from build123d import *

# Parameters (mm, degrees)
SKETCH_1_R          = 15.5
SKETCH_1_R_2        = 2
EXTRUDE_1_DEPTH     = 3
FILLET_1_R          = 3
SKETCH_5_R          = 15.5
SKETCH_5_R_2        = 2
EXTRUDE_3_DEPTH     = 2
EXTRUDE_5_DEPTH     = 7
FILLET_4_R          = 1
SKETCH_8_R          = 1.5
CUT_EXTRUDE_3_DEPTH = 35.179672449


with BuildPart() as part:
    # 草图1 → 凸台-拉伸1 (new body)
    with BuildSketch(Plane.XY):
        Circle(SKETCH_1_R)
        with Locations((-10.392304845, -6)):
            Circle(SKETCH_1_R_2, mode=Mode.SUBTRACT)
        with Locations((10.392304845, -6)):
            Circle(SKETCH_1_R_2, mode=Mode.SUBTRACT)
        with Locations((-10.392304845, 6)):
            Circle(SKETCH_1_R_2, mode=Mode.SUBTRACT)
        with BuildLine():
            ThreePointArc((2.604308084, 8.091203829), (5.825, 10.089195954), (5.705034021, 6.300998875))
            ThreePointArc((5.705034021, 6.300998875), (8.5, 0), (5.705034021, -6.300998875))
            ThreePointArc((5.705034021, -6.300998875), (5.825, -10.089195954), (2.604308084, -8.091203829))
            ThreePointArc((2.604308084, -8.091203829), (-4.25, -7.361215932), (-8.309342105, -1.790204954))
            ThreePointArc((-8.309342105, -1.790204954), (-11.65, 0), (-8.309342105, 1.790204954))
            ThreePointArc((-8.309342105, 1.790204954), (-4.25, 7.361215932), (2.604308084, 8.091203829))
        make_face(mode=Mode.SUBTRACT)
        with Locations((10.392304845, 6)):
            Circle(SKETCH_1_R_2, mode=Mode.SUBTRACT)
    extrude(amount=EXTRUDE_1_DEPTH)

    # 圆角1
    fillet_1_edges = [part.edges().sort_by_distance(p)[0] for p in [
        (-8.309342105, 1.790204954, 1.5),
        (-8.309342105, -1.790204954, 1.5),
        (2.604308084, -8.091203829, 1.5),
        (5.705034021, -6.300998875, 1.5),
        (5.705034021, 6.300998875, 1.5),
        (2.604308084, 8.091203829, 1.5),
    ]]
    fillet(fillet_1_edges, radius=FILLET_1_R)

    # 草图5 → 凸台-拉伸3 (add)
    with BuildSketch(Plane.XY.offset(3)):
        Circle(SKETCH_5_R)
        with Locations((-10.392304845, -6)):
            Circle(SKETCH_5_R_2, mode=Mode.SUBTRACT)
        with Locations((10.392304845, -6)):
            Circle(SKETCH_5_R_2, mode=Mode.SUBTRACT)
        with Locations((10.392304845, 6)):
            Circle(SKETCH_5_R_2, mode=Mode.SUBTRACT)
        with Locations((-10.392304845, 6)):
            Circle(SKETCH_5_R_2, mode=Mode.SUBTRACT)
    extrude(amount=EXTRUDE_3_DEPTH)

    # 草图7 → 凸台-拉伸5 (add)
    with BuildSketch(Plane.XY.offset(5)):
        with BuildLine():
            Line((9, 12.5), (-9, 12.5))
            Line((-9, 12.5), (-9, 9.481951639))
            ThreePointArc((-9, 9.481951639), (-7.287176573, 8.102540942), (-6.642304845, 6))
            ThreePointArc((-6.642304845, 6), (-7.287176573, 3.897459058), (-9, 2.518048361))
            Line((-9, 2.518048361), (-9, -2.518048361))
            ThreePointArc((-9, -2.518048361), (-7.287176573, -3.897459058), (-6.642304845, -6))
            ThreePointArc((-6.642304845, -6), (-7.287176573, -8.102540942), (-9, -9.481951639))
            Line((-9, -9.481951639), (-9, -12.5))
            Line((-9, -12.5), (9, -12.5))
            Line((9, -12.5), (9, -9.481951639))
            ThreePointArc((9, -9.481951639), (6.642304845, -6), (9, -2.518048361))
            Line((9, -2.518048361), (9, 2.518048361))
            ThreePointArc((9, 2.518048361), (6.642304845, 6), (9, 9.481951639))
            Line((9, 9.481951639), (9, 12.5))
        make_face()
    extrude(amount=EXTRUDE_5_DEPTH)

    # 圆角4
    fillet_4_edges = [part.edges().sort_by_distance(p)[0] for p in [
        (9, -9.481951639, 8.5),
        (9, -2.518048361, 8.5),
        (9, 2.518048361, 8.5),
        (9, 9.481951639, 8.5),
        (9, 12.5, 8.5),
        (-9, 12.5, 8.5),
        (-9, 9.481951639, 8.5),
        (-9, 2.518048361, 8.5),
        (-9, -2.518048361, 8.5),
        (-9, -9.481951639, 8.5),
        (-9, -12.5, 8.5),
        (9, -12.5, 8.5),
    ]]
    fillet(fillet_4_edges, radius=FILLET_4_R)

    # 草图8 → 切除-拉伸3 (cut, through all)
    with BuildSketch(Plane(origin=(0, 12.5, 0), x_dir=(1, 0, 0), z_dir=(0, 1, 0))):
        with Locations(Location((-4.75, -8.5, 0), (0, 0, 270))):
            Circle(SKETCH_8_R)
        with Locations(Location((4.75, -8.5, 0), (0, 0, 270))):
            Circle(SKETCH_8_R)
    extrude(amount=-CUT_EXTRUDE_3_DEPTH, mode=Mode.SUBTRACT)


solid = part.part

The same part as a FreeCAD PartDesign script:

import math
import FreeCAD as App
import Part
import Sketcher
from FreeCAD import Vector
Q = App.Units.Quantity


def edges_at(feature, points):
    """Names of the edges that pass closest to the given points."""
    edges = feature.Shape.Edges
    near = lambda p: min(range(len(edges)), key=lambda i: edges[i].distToShape(Part.Vertex(*p))[0])
    return sorted({f"Edge{near(p) + 1}" for p in points})

doc = App.newDocument("Part")
body = doc.addObject("PartDesign::Body", "Body")

# Sketch on XY plane
sketch1 = doc.addObject("Sketcher::SketchObject", "Sketch")
body.addObject(sketch1)
sketch1.AttachmentSupport = (doc.XY_Plane, [""])
sketch1.MapMode = "FlatFace"
sketch1.addGeometry([
    Part.Circle(Vector(0, 0, 0), Vector(0, 0, 1), 15.5),  # 0
    Part.Circle(Vector(-10.4, -6, 0), Vector(0, 0, 1), 2),  # 1
    Part.Circle(Vector(10.4, -6, 0), Vector(0, 0, 1), 2),  # 2
    Part.ArcOfCircle(Part.Circle(Vector(0, 0, 0), Vector(0, 0, 1), 8.5), math.radians(72), math.radians(168)),  # 3
    Part.ArcOfCircle(Part.Circle(Vector(4.8, 8.2, 0), Vector(0, 0, 1), 2.1), math.radians(-64), math.radians(184)),  # 4
    Part.ArcOfCircle(Part.Circle(Vector(0, 0, 0), Vector(0, 0, 1), 8.5), math.radians(-48), math.radians(48)),  # 5
    Part.ArcOfCircle(Part.Circle(Vector(4.8, -8.2, 0), Vector(0, 0, 1), 2.1), math.radians(176), math.radians(424)),  # 6
    Part.ArcOfCircle(Part.Circle(Vector(0, 0, 0), Vector(0, 0, 1), 8.5), math.radians(-168), math.radians(-72)),  # 7
    Part.ArcOfCircle(Part.Circle(Vector(-9.5, 0, 0), Vector(0, 0, 1), 2.1), math.radians(56), math.radians(304)),  # 8
    Part.Circle(Vector(-10.4, 6, 0), Vector(0, 0, 1), 2),  # 9
    Part.Circle(Vector(10.4, 6, 0), Vector(0, 0, 1), 2),  # 10
], False)
sketch1.addConstraint([
    Sketcher.Constraint("Coincident", 3, 1, 4, 2),
    Sketcher.Constraint("Coincident", 4, 1, 5, 2),
    Sketcher.Constraint("Coincident", 5, 1, 6, 2),
    Sketcher.Constraint("Coincident", 6, 1, 7, 2),
    Sketcher.Constraint("Coincident", 7, 1, 8, 2),
    Sketcher.Constraint("Coincident", 8, 1, 3, 2),
    Sketcher.Constraint("Coincident", 0, 3, -1, 1),
    Sketcher.Constraint("Coincident", 3, 3, -1, 1),
    Sketcher.Constraint("Coincident", 5, 3, -1, 1),
    Sketcher.Constraint("Coincident", 7, 3, -1, 1),
    Sketcher.Constraint("Equal", 1, 2),
    Sketcher.Constraint("Equal", 3, 5),
    Sketcher.Constraint("Equal", 4, 6),
    Sketcher.Constraint("Equal", 5, 7),
    Sketcher.Constraint("Equal", 6, 8),
    Sketcher.Constraint("Equal", 2, 9),
    Sketcher.Constraint("Equal", 9, 10),
    Sketcher.Constraint("Symmetric", 2, 3, 9, 3, -1, 1),
    Sketcher.Constraint("Symmetric", 1, 3, 10, 3, -1, 1),
    Sketcher.Constraint("Symmetric", 1, 3, 2, 3, -2),
    Sketcher.Constraint("Symmetric", 4, 3, 6, 3, -1),
    Sketcher.Constraint("PointOnObject", 8, 3, -1),
    Sketcher.Constraint("Diameter", 0, Q("31 mm")),
    Sketcher.Constraint("Diameter", 1, Q("4 mm")),
    Sketcher.Constraint("Radius", 3, Q("8.5 mm")),
    Sketcher.Constraint("Radius", 4, Q("2.15 mm")),
    Sketcher.Constraint("DistanceY", 1, 3, -1, 1, Q("6 mm")),
    Sketcher.Constraint("DistanceX", 8, 3, -1, 1, Q("9.5 mm")),
    Sketcher.Constraint("DistanceX", -1, 1, 4, 3, Q("4.75 mm")),
    Sketcher.Constraint("DistanceY", -1, 1, 4, 1, Q("6.300999 mm")),
    Sketcher.Constraint("DistanceX", 1, 3, 2, 3, Q("20.78461 mm")),
])
pad1 = doc.addObject("PartDesign::Pad", "Pad")
body.addObject(pad1)
pad1.Profile = sketch1
pad1.Length = 3
doc.recompute()

fillet = doc.addObject("PartDesign::Fillet", "Fillet")
body.addObject(fillet)
fillet.Base = (pad1, edges_at(pad1, [
    (-8.309, 1.79, 1.5),
    (-8.309, -1.79, 1.5),
    (2.604, -8.091, 1.5),
    (5.705, -6.301, 1.5),
    (5.705, 6.301, 1.5),
    (2.604, 8.091, 1.5),
]))
fillet.Radius = 3

# Sketch on XY plane
sketch2 = doc.addObject("Sketcher::SketchObject", "Sketch001")
body.addObject(sketch2)
sketch2.AttachmentSupport = (doc.XY_Plane, [""])
sketch2.MapMode = "FlatFace"
sketch2.AttachmentOffset = App.Placement(Vector(0, 0, 3), App.Rotation())
sketch2.addGeometry([
    Part.Circle(Vector(0, 0, 0), Vector(0, 0, 1), 15.5),  # 0
    Part.Circle(Vector(-10.4, -6, 0), Vector(0, 0, 1), 2),  # 1
    Part.Circle(Vector(10.4, -6, 0), Vector(0, 0, 1), 2),  # 2
    Part.Circle(Vector(-10.4, 6, 0), Vector(0, 0, 1), 2),  # 3
    Part.Circle(Vector(10.4, 6, 0), Vector(0, 0, 1), 2),  # 4
], False)
sketch2.addConstraint([
    Sketcher.Constraint("Coincident", 0, 3, -1, 1),
    Sketcher.Constraint("Equal", 1, 2),
    Sketcher.Constraint("Equal", 2, 3),
    Sketcher.Constraint("Equal", 3, 4),
    Sketcher.Constraint("Symmetric", 2, 3, 3, 3, -1, 1),
    Sketcher.Constraint("Symmetric", 1, 3, 4, 3, -1, 1),
    Sketcher.Constraint("Symmetric", 1, 3, 2, 3, -2),
    Sketcher.Constraint("Diameter", 0, Q("31 mm")),
    Sketcher.Constraint("Diameter", 1, Q("4 mm")),
    Sketcher.Constraint("DistanceY", 1, 3, -1, 1, Q("6 mm")),
    Sketcher.Constraint("DistanceX", 1, 3, 2, 3, Q("20.78461 mm")),
])
pad2 = doc.addObject("PartDesign::Pad", "Pad001")
body.addObject(pad2)
pad2.Profile = sketch2
pad2.Length = 2

# Sketch on XY plane
sketch3 = doc.addObject("Sketcher::SketchObject", "Sketch002")
body.addObject(sketch3)
sketch3.AttachmentSupport = (doc.XY_Plane, [""])
sketch3.MapMode = "FlatFace"
sketch3.AttachmentOffset = App.Placement(Vector(0, 0, 5), App.Rotation())
sketch3.addGeometry([
    Part.LineSegment(Vector(9, 12.5, 0), Vector(-9, 12.5, 0)),  # 0
    Part.LineSegment(Vector(-9, 12.5, 0), Vector(-9, 9.5, 0)),  # 1
    Part.ArcOfCircle(Part.Circle(Vector(-10.4, 6, 0), Vector(0, 0, 1), 3.8), math.radians(0), math.radians(68)),  # 2
    Part.ArcOfCircle(Part.Circle(Vector(-10.4, 6, 0), Vector(0, 0, 1), 3.8), math.radians(-68), math.radians(0)),  # 3
    Part.LineSegment(Vector(-9, 2.5, 0), Vector(-9, -2.5, 0)),  # 4
    Part.ArcOfCircle(Part.Circle(Vector(-10.4, -6, 0), Vector(0, 0, 1), 3.8), math.radians(0), math.radians(68)),  # 5
    Part.ArcOfCircle(Part.Circle(Vector(-10.4, -6, 0), Vector(0, 0, 1), 3.8), math.radians(-68), math.radians(0)),  # 6
    Part.LineSegment(Vector(-9, -9.5, 0), Vector(-9, -12.5, 0)),  # 7
    Part.LineSegment(Vector(-9, -12.5, 0), Vector(9, -12.5, 0)),  # 8
    Part.LineSegment(Vector(9, -12.5, 0), Vector(9, -9.5, 0)),  # 9
    Part.ArcOfCircle(Part.Circle(Vector(10.4, -6, 0), Vector(0, 0, 1), 3.8), math.radians(112), math.radians(248)),  # 10
    Part.LineSegment(Vector(9, -2.5, 0), Vector(9, 2.5, 0)),  # 11
    Part.ArcOfCircle(Part.Circle(Vector(10.4, 6, 0), Vector(0, 0, 1), 3.8), math.radians(112), math.radians(248)),  # 12
    Part.LineSegment(Vector(9, 9.5, 0), Vector(9, 12.5, 0)),  # 13
], False)
sketch3.addConstraint([
    Sketcher.Constraint("Coincident", 0, 2, 1, 1),
    Sketcher.Constraint("Coincident", 1, 2, 2, 2),
    Sketcher.Constraint("Tangent", 2, 1, 3, 2),
    Sketcher.Constraint("Coincident", 3, 1, 4, 1),
    Sketcher.Constraint("Coincident", 4, 2, 5, 2),
    Sketcher.Constraint("Tangent", 5, 1, 6, 2),
    Sketcher.Constraint("Coincident", 6, 1, 7, 1),
    Sketcher.Constraint("Coincident", 7, 2, 8, 1),
    Sketcher.Constraint("Coincident", 8, 2, 9, 1),
    Sketcher.Constraint("Coincident", 9, 2, 10, 2),
    Sketcher.Constraint("Coincident", 10, 1, 11, 1),
    Sketcher.Constraint("Coincident", 11, 2, 12, 2),
    Sketcher.Constraint("Coincident", 12, 1, 13, 1),
    Sketcher.Constraint("Coincident", 13, 2, 0, 1),
    Sketcher.Constraint("Horizontal", 0),
    Sketcher.Constraint("Vertical", 1),
    Sketcher.Constraint("Vertical", 4),
    Sketcher.Constraint("Vertical", 7),
    Sketcher.Constraint("Horizontal", 8),
    Sketcher.Constraint("Vertical", 9),
    Sketcher.Constraint("Vertical", 11),
    Sketcher.Constraint("Vertical", 13),
    Sketcher.Constraint("Equal", 2, 3),
    Sketcher.Constraint("Equal", 3, 5),
    Sketcher.Constraint("Equal", 5, 6),
    Sketcher.Constraint("Equal", 6, 10),
    Sketcher.Constraint("Equal", 10, 12),
    Sketcher.Constraint("Symmetric", 2, 3, 10, 3, -1, 1),
    Sketcher.Constraint("Symmetric", 5, 3, 12, 3, -1, 1),
    Sketcher.Constraint("Symmetric", 0, 2, 8, 2, -1, 1),
    Sketcher.Constraint("Symmetric", 5, 3, 10, 3, -2),
    Sketcher.Constraint("Horizontal", 12, 3, 2, 1),
    Sketcher.Constraint("Horizontal", 10, 3, 5, 1),
    Sketcher.Constraint("Horizontal", 6, 1, 9, 2),
    Sketcher.Constraint("Horizontal", 4, 2, 10, 1),
    Sketcher.Constraint("Horizontal", 1, 2, 12, 1),
    Sketcher.Constraint("Vertical", 1, 2, 3, 1),
    Sketcher.Constraint("DistanceX", 0, 2, 0, 1, Q("18 mm")),
    Sketcher.Constraint("Radius", 2, Q("3.75 mm")),
    Sketcher.Constraint("DistanceY", -1, 1, 2, 3, Q("6 mm")),
    Sketcher.Constraint("DistanceY", -1, 1, 0, 2, Q("12.5 mm")),
    Sketcher.Constraint("DistanceY", 1, 2, 1, 1, Q("3.018048 mm")),
])
pad3 = doc.addObject("PartDesign::Pad", "Pad002")
body.addObject(pad3)
pad3.Profile = sketch3
pad3.Length = 7
doc.recompute()

fillet2 = doc.addObject("PartDesign::Fillet", "Fillet001")
body.addObject(fillet2)
fillet2.Base = (pad3, edges_at(pad3, [
    (9, -9.482, 8.5),
    (9, -2.518, 8.5),
    (9, 2.518, 8.5),
    (9, 9.482, 8.5),
    (9, 12.5, 8.5),
    (-9, 12.5, 8.5),
    (-9, 9.482, 8.5),
    (-9, 2.518, 8.5),
    (-9, -2.518, 8.5),
    (-9, -9.482, 8.5),
    (-9, -12.5, 8.5),
    (9, -12.5, 8.5),
]))
fillet2.Radius = 1

# Sketch on XZ plane
sketch4 = doc.addObject("Sketcher::SketchObject", "Sketch003")
body.addObject(sketch4)
sketch4.AttachmentSupport = (doc.XZ_Plane, [""])
sketch4.MapMode = "FlatFace"
sketch4.AttachmentOffset = App.Placement(Vector(0, 0, -12.5), App.Rotation())
sketch4.addGeometry([
    Part.Circle(Vector(-4.8, 8.5, 0), Vector(0, 0, 1), 1.5),
    Part.Circle(Vector(4.8, 8.5, 0), Vector(0, 0, 1), 1.5),
], False)
sketch4.addConstraint([
    Sketcher.Constraint("Equal", 0, 1),
    Sketcher.Constraint("Symmetric", 0, 3, 1, 3, -2),
    Sketcher.Constraint("Diameter", 0, Q("3 mm")),
    Sketcher.Constraint("DistanceY", -1, 1, 0, 3, Q("8.5 mm")),
    Sketcher.Constraint("DistanceX", 0, 3, 1, 3, Q("9.5 mm")),
])
pocket1 = doc.addObject("PartDesign::Pocket", "Pocket")
body.addObject(pocket1)
pocket1.Profile = sketch4
pocket1.Type = "ThroughAll"
pocket1.Reversed = True

doc.recompute()
